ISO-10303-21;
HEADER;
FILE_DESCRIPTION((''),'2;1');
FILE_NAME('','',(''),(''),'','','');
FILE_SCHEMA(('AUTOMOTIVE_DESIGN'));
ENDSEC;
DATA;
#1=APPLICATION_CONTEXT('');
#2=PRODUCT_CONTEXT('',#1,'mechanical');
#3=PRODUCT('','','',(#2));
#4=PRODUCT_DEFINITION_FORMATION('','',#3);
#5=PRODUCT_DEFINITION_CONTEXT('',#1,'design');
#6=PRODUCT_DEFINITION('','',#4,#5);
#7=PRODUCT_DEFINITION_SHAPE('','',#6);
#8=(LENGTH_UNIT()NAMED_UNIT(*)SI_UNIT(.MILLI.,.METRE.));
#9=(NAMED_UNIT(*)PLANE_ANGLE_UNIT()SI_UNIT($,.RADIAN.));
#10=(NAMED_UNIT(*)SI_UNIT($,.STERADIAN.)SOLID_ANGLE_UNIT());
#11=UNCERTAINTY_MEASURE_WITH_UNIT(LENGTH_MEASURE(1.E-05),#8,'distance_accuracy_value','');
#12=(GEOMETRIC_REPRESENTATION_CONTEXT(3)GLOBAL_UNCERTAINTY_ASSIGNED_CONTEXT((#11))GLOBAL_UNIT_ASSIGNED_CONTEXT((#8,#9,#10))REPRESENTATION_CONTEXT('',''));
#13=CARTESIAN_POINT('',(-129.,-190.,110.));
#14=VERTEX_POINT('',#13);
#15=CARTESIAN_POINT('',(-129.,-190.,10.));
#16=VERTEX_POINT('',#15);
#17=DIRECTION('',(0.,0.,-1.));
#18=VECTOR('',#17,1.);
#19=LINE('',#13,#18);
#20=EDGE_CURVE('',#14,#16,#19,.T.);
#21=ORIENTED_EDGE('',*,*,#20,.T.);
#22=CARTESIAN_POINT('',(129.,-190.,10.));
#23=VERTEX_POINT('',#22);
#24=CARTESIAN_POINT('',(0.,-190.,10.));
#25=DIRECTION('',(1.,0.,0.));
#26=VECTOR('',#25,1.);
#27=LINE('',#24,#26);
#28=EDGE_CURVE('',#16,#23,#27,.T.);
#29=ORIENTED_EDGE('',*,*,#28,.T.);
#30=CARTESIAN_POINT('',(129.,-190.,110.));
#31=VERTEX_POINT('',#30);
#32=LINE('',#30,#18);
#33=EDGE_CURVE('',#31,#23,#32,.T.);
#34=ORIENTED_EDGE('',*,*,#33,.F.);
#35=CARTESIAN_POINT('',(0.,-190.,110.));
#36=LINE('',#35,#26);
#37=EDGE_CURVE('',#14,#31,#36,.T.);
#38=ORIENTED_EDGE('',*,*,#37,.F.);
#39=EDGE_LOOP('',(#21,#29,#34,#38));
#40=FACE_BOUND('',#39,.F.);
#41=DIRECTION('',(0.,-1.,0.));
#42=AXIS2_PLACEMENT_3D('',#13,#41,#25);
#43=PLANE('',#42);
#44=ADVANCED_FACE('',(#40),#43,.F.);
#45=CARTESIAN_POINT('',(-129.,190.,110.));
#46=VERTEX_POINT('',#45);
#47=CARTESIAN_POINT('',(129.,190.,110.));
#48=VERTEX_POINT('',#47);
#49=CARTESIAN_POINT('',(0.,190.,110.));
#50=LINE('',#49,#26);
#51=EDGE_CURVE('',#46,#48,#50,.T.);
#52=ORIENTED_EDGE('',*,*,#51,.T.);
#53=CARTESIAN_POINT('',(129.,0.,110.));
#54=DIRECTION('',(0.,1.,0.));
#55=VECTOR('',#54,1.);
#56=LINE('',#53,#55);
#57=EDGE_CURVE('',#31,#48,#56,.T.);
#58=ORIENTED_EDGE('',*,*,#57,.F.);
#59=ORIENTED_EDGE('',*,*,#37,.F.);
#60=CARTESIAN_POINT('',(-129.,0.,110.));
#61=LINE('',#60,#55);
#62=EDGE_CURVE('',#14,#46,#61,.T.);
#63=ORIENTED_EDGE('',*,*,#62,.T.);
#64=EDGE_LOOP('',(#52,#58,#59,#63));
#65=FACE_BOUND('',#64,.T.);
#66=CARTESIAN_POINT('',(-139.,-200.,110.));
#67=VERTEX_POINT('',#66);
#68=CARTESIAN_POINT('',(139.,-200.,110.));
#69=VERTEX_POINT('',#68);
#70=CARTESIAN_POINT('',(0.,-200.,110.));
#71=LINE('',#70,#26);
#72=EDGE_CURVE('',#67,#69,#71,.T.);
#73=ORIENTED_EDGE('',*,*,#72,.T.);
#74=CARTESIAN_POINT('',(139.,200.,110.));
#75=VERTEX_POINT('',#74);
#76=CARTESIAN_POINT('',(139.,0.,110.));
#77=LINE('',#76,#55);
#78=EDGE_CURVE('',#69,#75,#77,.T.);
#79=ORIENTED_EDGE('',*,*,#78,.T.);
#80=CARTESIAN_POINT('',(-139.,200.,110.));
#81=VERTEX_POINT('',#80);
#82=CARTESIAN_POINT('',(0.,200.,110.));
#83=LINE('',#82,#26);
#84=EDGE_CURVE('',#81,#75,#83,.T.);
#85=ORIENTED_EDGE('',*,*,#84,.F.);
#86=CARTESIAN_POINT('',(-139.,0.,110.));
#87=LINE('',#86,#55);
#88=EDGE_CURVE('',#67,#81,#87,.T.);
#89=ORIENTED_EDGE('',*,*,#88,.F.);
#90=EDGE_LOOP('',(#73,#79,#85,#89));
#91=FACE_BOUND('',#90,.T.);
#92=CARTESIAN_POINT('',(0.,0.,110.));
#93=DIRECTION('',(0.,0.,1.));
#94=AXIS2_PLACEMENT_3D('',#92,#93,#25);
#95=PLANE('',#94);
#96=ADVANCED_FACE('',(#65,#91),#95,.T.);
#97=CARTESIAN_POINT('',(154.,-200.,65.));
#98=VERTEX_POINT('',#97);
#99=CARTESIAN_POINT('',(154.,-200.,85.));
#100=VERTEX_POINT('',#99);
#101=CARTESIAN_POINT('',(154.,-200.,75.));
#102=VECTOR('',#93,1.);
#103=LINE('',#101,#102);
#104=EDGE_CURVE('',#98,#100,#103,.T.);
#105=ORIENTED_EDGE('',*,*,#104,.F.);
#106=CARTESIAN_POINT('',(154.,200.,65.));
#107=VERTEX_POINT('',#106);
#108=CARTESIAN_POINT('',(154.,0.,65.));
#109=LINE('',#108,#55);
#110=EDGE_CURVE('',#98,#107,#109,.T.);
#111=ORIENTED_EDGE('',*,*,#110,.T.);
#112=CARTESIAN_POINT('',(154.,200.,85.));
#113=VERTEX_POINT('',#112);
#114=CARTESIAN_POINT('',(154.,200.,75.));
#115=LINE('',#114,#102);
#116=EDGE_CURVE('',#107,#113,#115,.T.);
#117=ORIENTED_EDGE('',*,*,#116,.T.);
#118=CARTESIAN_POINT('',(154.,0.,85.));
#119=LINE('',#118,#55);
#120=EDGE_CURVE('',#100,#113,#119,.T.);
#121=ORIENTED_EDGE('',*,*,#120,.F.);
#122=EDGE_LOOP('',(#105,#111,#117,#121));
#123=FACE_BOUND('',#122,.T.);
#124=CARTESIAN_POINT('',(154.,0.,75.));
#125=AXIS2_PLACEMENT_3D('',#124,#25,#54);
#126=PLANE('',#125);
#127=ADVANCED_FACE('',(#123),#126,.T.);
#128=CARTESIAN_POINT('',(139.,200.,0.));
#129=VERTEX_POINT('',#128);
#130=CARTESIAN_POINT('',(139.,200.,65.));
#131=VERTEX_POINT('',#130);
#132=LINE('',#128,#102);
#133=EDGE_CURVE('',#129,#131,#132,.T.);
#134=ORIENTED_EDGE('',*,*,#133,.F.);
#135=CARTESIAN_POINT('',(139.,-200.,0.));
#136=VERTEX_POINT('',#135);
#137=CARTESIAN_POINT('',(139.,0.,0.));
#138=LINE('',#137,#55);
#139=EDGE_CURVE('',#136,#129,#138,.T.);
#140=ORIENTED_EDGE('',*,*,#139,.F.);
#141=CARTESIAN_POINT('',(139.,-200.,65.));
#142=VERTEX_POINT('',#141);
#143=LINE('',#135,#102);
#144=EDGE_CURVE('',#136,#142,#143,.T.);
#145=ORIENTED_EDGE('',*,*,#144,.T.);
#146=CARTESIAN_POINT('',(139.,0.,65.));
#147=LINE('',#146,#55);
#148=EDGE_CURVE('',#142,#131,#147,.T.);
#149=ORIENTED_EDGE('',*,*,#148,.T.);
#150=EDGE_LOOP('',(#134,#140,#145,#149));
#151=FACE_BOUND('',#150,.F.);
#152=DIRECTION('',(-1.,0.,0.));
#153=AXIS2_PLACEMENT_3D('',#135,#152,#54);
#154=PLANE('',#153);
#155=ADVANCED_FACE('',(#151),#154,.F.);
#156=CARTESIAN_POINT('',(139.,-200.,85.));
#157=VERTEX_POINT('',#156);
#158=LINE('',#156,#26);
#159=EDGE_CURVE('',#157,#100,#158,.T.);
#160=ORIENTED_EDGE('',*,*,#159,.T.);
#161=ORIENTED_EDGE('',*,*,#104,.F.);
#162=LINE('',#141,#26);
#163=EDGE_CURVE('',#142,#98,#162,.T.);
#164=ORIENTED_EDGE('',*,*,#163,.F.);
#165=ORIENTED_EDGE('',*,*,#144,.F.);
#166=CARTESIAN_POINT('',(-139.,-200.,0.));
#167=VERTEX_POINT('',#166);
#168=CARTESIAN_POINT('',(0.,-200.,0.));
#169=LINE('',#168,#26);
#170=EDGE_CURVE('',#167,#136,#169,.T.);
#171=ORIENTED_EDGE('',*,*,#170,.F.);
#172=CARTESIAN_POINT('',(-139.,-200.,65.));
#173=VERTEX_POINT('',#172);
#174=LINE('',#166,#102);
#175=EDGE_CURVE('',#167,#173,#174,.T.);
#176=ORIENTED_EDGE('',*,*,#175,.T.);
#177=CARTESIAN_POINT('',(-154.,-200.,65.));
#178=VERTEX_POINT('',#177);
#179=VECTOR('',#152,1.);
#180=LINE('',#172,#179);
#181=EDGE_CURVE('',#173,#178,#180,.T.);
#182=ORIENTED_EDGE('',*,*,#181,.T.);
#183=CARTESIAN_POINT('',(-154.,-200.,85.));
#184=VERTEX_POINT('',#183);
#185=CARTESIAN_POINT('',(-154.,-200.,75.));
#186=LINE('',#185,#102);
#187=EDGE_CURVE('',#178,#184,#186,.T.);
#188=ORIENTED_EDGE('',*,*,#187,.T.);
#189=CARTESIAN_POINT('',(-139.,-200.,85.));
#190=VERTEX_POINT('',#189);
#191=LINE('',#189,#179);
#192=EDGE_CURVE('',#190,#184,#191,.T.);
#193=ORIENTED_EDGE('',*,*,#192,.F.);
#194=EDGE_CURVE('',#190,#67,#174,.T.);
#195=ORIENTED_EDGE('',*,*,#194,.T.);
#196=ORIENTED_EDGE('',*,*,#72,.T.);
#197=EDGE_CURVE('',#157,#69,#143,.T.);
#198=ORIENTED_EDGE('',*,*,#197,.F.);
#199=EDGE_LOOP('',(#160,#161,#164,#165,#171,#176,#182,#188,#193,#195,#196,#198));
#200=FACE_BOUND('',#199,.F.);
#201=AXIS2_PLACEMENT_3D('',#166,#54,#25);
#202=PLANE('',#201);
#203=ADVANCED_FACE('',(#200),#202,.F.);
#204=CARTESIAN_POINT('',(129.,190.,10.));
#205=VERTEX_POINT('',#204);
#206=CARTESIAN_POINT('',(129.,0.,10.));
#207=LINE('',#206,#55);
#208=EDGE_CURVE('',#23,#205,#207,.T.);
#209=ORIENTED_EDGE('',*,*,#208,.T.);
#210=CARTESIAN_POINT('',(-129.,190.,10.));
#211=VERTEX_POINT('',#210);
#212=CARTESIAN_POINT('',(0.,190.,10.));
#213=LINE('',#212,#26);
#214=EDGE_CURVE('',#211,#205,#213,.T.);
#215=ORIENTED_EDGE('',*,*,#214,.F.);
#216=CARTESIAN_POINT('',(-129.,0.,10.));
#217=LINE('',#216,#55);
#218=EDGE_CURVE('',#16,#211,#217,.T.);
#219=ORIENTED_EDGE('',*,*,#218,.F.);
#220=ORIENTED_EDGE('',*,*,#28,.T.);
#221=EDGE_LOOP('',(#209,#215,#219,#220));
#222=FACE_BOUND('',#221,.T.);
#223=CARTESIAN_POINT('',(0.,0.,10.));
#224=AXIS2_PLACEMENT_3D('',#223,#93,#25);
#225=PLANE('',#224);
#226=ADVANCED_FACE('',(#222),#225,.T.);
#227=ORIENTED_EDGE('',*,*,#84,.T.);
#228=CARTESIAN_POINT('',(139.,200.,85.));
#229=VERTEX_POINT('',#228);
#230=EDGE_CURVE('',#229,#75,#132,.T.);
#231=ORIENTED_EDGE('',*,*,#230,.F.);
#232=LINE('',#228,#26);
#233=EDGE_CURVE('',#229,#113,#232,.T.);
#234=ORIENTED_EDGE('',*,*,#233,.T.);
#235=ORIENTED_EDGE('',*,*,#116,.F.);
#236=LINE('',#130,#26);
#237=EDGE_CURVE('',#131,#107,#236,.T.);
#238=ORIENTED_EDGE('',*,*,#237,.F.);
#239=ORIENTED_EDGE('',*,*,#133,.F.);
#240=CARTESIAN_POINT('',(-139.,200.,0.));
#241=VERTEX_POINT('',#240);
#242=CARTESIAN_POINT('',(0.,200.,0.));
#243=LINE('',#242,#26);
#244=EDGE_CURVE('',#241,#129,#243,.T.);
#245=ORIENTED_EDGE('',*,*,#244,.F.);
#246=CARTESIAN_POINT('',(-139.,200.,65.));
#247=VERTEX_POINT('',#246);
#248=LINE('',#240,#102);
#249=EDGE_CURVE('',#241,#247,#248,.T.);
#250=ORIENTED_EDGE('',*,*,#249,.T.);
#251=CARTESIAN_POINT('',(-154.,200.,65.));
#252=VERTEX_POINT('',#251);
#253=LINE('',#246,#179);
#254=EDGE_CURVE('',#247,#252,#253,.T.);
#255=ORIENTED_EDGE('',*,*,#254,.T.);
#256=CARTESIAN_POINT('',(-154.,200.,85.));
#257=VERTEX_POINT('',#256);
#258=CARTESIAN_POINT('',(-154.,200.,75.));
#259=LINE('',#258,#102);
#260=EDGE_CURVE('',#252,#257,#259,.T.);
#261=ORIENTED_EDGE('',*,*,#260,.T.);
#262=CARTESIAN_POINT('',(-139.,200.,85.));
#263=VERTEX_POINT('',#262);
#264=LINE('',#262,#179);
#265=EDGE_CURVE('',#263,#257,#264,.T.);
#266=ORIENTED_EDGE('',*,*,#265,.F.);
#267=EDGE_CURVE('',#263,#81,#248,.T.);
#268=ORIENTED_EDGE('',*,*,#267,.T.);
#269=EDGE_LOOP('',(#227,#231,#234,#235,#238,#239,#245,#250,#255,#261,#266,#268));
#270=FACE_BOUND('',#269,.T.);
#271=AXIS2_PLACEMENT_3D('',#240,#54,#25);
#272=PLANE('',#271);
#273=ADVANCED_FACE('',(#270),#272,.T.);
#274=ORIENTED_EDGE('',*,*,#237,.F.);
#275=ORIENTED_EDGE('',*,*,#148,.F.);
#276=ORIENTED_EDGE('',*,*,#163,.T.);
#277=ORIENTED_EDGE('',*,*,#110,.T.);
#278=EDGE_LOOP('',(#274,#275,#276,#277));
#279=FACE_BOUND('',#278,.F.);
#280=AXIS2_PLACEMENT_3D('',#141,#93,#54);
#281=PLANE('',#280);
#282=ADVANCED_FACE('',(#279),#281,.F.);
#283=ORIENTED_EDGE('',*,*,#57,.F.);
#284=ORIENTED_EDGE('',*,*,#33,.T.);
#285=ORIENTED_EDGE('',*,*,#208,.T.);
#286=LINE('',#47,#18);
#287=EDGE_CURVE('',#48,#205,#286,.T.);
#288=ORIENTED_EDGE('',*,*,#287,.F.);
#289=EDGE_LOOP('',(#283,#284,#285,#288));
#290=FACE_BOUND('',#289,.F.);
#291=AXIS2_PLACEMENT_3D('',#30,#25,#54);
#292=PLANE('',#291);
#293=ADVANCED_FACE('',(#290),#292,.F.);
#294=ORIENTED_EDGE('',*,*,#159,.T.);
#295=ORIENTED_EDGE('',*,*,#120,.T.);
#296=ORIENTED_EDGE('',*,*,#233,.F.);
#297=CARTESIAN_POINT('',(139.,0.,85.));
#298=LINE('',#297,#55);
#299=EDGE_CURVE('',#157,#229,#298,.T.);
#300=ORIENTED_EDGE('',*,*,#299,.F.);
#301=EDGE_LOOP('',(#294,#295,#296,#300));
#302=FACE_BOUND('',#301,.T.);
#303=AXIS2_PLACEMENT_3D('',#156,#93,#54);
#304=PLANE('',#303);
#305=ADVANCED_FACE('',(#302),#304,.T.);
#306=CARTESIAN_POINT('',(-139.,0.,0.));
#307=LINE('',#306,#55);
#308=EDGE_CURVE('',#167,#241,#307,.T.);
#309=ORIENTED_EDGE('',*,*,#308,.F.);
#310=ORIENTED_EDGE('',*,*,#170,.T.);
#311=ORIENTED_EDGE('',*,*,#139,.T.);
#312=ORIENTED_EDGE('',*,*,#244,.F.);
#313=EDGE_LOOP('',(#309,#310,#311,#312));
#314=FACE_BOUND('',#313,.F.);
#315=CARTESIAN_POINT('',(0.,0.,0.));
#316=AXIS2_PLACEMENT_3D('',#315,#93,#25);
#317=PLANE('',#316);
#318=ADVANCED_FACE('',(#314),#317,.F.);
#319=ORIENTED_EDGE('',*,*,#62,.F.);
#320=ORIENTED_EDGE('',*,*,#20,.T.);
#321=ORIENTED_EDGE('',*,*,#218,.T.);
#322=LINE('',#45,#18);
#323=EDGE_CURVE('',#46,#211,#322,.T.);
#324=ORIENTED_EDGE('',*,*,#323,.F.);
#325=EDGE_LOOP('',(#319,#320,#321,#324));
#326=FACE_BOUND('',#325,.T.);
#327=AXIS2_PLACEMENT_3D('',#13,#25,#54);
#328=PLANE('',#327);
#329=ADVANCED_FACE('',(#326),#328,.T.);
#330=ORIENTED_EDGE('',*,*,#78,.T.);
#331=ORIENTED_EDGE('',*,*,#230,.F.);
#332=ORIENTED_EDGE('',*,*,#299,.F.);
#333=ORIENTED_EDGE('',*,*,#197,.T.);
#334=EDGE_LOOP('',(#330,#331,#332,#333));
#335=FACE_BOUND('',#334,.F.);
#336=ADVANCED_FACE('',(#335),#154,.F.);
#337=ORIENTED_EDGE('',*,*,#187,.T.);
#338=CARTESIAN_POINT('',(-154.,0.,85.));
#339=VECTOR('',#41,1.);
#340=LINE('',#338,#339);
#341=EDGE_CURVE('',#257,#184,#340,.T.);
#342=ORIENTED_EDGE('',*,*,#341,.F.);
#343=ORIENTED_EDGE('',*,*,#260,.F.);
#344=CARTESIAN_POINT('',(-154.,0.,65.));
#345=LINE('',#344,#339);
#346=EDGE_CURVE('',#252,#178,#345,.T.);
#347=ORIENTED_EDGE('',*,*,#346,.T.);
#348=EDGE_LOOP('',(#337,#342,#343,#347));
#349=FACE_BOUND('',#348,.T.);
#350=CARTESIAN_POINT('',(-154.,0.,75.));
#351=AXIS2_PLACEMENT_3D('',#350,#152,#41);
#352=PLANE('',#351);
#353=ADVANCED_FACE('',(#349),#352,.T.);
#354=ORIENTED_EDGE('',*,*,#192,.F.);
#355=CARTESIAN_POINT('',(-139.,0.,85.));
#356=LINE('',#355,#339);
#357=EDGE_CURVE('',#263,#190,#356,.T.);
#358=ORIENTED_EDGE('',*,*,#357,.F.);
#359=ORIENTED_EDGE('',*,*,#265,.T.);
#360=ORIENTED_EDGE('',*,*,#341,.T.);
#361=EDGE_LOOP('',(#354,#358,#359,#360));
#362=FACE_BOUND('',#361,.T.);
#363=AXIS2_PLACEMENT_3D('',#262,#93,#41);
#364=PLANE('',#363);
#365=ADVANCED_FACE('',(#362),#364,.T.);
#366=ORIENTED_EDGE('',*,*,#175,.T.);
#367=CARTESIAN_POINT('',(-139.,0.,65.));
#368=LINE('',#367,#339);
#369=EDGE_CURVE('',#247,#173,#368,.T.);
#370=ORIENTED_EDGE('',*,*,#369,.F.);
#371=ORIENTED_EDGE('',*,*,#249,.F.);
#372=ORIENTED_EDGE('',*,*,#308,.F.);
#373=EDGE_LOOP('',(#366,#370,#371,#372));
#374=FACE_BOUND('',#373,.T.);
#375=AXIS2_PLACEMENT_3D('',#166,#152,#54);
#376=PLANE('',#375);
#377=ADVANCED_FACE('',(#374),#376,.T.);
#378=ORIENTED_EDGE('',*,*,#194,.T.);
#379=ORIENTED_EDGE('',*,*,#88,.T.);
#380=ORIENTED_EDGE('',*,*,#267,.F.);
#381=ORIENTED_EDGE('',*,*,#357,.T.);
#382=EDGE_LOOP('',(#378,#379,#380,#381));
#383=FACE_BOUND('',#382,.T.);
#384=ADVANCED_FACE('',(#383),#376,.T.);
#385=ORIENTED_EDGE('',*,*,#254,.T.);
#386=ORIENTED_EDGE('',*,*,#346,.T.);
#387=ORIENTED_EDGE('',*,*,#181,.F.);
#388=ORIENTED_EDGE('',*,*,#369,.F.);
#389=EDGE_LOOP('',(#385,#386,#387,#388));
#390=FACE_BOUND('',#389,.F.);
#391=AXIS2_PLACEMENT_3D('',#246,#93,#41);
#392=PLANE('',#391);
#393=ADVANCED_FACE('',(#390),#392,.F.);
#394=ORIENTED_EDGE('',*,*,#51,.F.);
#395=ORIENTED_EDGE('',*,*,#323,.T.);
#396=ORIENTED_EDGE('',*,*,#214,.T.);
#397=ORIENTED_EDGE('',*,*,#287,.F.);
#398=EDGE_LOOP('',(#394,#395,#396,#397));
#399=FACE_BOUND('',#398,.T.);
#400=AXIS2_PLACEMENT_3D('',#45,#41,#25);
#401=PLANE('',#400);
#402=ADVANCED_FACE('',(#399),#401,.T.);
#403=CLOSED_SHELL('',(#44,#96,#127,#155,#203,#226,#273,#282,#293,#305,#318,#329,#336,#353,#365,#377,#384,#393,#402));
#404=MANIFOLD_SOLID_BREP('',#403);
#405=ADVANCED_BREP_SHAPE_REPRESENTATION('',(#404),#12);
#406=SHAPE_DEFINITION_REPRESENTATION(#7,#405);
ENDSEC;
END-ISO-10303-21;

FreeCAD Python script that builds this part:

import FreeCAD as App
import Part
import Sketcher
Q = App.Units.Quantity

doc = App.newDocument("Part")
body = doc.addObject("PartDesign::Body", "Body")

# Sketch on XY plane
sketch1 = body.newObject("Sketcher::SketchObject", "Sketch")
sketch1.AttachmentSupport = (doc.getObject("XY_Plane"), [""])
sketch1.MapMode = "FlatFace"
sketch1.addGeometry([
    Part.LineSegment(App.Vector(-139, 200, 0), App.Vector(-139, -200, 0)),
    Part.LineSegment(App.Vector(-139, -200, 0), App.Vector(139, -200, 0)),
    Part.LineSegment(App.Vector(139, -200, 0), App.Vector(139, 200, 0)),
    Part.LineSegment(App.Vector(139, 200, 0), App.Vector(-139, 200, 0)),
], False)
sketch1.addConstraint([
    Sketcher.Constraint("Coincident", 0, 2, 1, 1),
    Sketcher.Constraint("Coincident", 1, 2, 2, 1),
    Sketcher.Constraint("Coincident", 2, 2, 3, 1),
    Sketcher.Constraint("Coincident", 3, 2, 0, 1),
    Sketcher.Constraint("Vertical", 0),
    Sketcher.Constraint("Horizontal", 1),
    Sketcher.Constraint("Vertical", 2),
    Sketcher.Constraint("Horizontal", 3),
    Sketcher.Constraint("Symmetric", 0, 2, 2, 2, -1, 1),
    Sketcher.Constraint("DistanceX", 1, 1, 1, 2, Q("278 mm")),
    Sketcher.Constraint("DistanceY", 0, 2, 0, 1, Q("400 mm")),
])
pad1 = body.newObject("PartDesign::Pad", "Pad")
pad1.Profile = sketch1
pad1.Length = 110

# Sketch on XY plane
sketch2 = body.newObject("Sketcher::SketchObject", "Sketch001")
sketch2.AttachmentSupport = (doc.getObject("XY_Plane"), [""])
sketch2.MapMode = "FlatFace"
sketch2.AttachmentOffset = App.Placement(App.Vector(0, 0, 110), App.Rotation())
sketch2.addGeometry([
    Part.LineSegment(App.Vector(-129, 190, 0), App.Vector(-129, -190, 0)),
    Part.LineSegment(App.Vector(-129, -190, 0), App.Vector(129, -190, 0)),
    Part.LineSegment(App.Vector(129, -190, 0), App.Vector(129, 190, 0)),
    Part.LineSegment(App.Vector(129, 190, 0), App.Vector(-129, 190, 0)),
], False)
sketch2.addConstraint([
    Sketcher.Constraint("Coincident", 0, 2, 1, 1),
    Sketcher.Constraint("Coincident", 1, 2, 2, 1),
    Sketcher.Constraint("Coincident", 2, 2, 3, 1),
    Sketcher.Constraint("Coincident", 3, 2, 0, 1),
    Sketcher.Constraint("Vertical", 0),
    Sketcher.Constraint("Horizontal", 1),
    Sketcher.Constraint("Vertical", 2),
    Sketcher.Constraint("Horizontal", 3),
    Sketcher.Constraint("Symmetric", 0, 2, 2, 2, -1, 1),
    Sketcher.Constraint("DistanceX", 1, 1, 1, 2, Q("258 mm")),
    Sketcher.Constraint("DistanceY", 0, 2, 0, 1, Q("380 mm")),
])
pocket1 = body.newObject("PartDesign::Pocket", "Pocket")
pocket1.Profile = sketch2
pocket1.Length = 100

# Sketch on YZ plane
sketch3 = body.newObject("Sketcher::SketchObject", "Sketch002")
sketch3.AttachmentSupport = (doc.getObject("YZ_Plane"), [""])
sketch3.MapMode = "FlatFace"
sketch3.AttachmentOffset = App.Placement(App.Vector(0, 0, -139), App.Rotation())
sketch3.addGeometry([
    Part.LineSegment(App.Vector(200, 85, 0), App.Vector(200, 65, 0)),
    Part.LineSegment(App.Vector(200, 65, 0), App.Vector(-200, 65, 0)),
    Part.LineSegment(App.Vector(-200, 65, 0), App.Vector(-200, 85, 0)),
    Part.LineSegment(App.Vector(-200, 85, 0), App.Vector(200, 85, 0)),
], False)
sketch3.addConstraint([
    Sketcher.Constraint("Coincident", 0, 2, 1, 1),
    Sketcher.Constraint("Coincident", 1, 2, 2, 1),
    Sketcher.Constraint("Coincident", 2, 2, 3, 1),
    Sketcher.Constraint("Coincident", 3, 2, 0, 1),
    Sketcher.Constraint("Vertical", 0),
    Sketcher.Constraint("Horizontal", 1),
    Sketcher.Constraint("Vertical", 2),
    Sketcher.Constraint("Horizontal", 3),
    Sketcher.Constraint("DistanceX", 1, 2, 1, 1, Q("400 mm")),
    Sketcher.Constraint("DistanceY", 0, 2, 0, 1, Q("20 mm")),
    Sketcher.Constraint("DistanceX", -1, 1, 0, 2, Q("200 mm")),
    Sketcher.Constraint("DistanceY", -1, 1, 0, 2, Q("65 mm")),
])
pad2 = body.newObject("PartDesign::Pad", "Pad001")
pad2.Profile = sketch3
pad2.Length = 15
pad2.Reversed = True

# Sketch on YZ plane
sketch4 = body.newObject("Sketcher::SketchObject", "Sketch003")
sketch4.AttachmentSupport = (doc.getObject("YZ_Plane"), [""])
sketch4.MapMode = "FlatFace"
sketch4.AttachmentOffset = App.Placement(App.Vector(0, 0, 139), App.Rotation())
sketch4.addGeometry([
    Part.LineSegment(App.Vector(-200, 85, 0), App.Vector(-200, 65, 0)),
    Part.LineSegment(App.Vector(-200, 65, 0), App.Vector(200, 65, 0)),
    Part.LineSegment(App.Vector(200, 65, 0), App.Vector(200, 85, 0)),
    Part.LineSegment(App.Vector(200, 85, 0), App.Vector(-200, 85, 0)),
], False)
sketch4.addConstraint([
    Sketcher.Constraint("Coincident", 0, 2, 1, 1),
    Sketcher.Constraint("Coincident", 1, 2, 2, 1),
    Sketcher.Constraint("Coincident", 2, 2, 3, 1),
    Sketcher.Constraint("Coincident", 3, 2, 0, 1),
    Sketcher.Constraint("Vertical", 0),
    Sketcher.Constraint("Horizontal", 1),
    Sketcher.Constraint("Vertical", 2),
    Sketcher.Constraint("Horizontal", 3),
    Sketcher.Constraint("DistanceX", 1, 1, 1, 2, Q("400 mm")),
    Sketcher.Constraint("DistanceY", 0, 2, 0, 1, Q("20 mm")),
    Sketcher.Constraint("DistanceX", 0, 2, -1, 1, Q("200 mm")),
    Sketcher.Constraint("DistanceY", -1, 1, 0, 2, Q("65 mm")),
])
pad3 = body.newObject("PartDesign::Pad", "Pad002")
pad3.Profile = sketch4
pad3.Length = 15

doc.recompute()
